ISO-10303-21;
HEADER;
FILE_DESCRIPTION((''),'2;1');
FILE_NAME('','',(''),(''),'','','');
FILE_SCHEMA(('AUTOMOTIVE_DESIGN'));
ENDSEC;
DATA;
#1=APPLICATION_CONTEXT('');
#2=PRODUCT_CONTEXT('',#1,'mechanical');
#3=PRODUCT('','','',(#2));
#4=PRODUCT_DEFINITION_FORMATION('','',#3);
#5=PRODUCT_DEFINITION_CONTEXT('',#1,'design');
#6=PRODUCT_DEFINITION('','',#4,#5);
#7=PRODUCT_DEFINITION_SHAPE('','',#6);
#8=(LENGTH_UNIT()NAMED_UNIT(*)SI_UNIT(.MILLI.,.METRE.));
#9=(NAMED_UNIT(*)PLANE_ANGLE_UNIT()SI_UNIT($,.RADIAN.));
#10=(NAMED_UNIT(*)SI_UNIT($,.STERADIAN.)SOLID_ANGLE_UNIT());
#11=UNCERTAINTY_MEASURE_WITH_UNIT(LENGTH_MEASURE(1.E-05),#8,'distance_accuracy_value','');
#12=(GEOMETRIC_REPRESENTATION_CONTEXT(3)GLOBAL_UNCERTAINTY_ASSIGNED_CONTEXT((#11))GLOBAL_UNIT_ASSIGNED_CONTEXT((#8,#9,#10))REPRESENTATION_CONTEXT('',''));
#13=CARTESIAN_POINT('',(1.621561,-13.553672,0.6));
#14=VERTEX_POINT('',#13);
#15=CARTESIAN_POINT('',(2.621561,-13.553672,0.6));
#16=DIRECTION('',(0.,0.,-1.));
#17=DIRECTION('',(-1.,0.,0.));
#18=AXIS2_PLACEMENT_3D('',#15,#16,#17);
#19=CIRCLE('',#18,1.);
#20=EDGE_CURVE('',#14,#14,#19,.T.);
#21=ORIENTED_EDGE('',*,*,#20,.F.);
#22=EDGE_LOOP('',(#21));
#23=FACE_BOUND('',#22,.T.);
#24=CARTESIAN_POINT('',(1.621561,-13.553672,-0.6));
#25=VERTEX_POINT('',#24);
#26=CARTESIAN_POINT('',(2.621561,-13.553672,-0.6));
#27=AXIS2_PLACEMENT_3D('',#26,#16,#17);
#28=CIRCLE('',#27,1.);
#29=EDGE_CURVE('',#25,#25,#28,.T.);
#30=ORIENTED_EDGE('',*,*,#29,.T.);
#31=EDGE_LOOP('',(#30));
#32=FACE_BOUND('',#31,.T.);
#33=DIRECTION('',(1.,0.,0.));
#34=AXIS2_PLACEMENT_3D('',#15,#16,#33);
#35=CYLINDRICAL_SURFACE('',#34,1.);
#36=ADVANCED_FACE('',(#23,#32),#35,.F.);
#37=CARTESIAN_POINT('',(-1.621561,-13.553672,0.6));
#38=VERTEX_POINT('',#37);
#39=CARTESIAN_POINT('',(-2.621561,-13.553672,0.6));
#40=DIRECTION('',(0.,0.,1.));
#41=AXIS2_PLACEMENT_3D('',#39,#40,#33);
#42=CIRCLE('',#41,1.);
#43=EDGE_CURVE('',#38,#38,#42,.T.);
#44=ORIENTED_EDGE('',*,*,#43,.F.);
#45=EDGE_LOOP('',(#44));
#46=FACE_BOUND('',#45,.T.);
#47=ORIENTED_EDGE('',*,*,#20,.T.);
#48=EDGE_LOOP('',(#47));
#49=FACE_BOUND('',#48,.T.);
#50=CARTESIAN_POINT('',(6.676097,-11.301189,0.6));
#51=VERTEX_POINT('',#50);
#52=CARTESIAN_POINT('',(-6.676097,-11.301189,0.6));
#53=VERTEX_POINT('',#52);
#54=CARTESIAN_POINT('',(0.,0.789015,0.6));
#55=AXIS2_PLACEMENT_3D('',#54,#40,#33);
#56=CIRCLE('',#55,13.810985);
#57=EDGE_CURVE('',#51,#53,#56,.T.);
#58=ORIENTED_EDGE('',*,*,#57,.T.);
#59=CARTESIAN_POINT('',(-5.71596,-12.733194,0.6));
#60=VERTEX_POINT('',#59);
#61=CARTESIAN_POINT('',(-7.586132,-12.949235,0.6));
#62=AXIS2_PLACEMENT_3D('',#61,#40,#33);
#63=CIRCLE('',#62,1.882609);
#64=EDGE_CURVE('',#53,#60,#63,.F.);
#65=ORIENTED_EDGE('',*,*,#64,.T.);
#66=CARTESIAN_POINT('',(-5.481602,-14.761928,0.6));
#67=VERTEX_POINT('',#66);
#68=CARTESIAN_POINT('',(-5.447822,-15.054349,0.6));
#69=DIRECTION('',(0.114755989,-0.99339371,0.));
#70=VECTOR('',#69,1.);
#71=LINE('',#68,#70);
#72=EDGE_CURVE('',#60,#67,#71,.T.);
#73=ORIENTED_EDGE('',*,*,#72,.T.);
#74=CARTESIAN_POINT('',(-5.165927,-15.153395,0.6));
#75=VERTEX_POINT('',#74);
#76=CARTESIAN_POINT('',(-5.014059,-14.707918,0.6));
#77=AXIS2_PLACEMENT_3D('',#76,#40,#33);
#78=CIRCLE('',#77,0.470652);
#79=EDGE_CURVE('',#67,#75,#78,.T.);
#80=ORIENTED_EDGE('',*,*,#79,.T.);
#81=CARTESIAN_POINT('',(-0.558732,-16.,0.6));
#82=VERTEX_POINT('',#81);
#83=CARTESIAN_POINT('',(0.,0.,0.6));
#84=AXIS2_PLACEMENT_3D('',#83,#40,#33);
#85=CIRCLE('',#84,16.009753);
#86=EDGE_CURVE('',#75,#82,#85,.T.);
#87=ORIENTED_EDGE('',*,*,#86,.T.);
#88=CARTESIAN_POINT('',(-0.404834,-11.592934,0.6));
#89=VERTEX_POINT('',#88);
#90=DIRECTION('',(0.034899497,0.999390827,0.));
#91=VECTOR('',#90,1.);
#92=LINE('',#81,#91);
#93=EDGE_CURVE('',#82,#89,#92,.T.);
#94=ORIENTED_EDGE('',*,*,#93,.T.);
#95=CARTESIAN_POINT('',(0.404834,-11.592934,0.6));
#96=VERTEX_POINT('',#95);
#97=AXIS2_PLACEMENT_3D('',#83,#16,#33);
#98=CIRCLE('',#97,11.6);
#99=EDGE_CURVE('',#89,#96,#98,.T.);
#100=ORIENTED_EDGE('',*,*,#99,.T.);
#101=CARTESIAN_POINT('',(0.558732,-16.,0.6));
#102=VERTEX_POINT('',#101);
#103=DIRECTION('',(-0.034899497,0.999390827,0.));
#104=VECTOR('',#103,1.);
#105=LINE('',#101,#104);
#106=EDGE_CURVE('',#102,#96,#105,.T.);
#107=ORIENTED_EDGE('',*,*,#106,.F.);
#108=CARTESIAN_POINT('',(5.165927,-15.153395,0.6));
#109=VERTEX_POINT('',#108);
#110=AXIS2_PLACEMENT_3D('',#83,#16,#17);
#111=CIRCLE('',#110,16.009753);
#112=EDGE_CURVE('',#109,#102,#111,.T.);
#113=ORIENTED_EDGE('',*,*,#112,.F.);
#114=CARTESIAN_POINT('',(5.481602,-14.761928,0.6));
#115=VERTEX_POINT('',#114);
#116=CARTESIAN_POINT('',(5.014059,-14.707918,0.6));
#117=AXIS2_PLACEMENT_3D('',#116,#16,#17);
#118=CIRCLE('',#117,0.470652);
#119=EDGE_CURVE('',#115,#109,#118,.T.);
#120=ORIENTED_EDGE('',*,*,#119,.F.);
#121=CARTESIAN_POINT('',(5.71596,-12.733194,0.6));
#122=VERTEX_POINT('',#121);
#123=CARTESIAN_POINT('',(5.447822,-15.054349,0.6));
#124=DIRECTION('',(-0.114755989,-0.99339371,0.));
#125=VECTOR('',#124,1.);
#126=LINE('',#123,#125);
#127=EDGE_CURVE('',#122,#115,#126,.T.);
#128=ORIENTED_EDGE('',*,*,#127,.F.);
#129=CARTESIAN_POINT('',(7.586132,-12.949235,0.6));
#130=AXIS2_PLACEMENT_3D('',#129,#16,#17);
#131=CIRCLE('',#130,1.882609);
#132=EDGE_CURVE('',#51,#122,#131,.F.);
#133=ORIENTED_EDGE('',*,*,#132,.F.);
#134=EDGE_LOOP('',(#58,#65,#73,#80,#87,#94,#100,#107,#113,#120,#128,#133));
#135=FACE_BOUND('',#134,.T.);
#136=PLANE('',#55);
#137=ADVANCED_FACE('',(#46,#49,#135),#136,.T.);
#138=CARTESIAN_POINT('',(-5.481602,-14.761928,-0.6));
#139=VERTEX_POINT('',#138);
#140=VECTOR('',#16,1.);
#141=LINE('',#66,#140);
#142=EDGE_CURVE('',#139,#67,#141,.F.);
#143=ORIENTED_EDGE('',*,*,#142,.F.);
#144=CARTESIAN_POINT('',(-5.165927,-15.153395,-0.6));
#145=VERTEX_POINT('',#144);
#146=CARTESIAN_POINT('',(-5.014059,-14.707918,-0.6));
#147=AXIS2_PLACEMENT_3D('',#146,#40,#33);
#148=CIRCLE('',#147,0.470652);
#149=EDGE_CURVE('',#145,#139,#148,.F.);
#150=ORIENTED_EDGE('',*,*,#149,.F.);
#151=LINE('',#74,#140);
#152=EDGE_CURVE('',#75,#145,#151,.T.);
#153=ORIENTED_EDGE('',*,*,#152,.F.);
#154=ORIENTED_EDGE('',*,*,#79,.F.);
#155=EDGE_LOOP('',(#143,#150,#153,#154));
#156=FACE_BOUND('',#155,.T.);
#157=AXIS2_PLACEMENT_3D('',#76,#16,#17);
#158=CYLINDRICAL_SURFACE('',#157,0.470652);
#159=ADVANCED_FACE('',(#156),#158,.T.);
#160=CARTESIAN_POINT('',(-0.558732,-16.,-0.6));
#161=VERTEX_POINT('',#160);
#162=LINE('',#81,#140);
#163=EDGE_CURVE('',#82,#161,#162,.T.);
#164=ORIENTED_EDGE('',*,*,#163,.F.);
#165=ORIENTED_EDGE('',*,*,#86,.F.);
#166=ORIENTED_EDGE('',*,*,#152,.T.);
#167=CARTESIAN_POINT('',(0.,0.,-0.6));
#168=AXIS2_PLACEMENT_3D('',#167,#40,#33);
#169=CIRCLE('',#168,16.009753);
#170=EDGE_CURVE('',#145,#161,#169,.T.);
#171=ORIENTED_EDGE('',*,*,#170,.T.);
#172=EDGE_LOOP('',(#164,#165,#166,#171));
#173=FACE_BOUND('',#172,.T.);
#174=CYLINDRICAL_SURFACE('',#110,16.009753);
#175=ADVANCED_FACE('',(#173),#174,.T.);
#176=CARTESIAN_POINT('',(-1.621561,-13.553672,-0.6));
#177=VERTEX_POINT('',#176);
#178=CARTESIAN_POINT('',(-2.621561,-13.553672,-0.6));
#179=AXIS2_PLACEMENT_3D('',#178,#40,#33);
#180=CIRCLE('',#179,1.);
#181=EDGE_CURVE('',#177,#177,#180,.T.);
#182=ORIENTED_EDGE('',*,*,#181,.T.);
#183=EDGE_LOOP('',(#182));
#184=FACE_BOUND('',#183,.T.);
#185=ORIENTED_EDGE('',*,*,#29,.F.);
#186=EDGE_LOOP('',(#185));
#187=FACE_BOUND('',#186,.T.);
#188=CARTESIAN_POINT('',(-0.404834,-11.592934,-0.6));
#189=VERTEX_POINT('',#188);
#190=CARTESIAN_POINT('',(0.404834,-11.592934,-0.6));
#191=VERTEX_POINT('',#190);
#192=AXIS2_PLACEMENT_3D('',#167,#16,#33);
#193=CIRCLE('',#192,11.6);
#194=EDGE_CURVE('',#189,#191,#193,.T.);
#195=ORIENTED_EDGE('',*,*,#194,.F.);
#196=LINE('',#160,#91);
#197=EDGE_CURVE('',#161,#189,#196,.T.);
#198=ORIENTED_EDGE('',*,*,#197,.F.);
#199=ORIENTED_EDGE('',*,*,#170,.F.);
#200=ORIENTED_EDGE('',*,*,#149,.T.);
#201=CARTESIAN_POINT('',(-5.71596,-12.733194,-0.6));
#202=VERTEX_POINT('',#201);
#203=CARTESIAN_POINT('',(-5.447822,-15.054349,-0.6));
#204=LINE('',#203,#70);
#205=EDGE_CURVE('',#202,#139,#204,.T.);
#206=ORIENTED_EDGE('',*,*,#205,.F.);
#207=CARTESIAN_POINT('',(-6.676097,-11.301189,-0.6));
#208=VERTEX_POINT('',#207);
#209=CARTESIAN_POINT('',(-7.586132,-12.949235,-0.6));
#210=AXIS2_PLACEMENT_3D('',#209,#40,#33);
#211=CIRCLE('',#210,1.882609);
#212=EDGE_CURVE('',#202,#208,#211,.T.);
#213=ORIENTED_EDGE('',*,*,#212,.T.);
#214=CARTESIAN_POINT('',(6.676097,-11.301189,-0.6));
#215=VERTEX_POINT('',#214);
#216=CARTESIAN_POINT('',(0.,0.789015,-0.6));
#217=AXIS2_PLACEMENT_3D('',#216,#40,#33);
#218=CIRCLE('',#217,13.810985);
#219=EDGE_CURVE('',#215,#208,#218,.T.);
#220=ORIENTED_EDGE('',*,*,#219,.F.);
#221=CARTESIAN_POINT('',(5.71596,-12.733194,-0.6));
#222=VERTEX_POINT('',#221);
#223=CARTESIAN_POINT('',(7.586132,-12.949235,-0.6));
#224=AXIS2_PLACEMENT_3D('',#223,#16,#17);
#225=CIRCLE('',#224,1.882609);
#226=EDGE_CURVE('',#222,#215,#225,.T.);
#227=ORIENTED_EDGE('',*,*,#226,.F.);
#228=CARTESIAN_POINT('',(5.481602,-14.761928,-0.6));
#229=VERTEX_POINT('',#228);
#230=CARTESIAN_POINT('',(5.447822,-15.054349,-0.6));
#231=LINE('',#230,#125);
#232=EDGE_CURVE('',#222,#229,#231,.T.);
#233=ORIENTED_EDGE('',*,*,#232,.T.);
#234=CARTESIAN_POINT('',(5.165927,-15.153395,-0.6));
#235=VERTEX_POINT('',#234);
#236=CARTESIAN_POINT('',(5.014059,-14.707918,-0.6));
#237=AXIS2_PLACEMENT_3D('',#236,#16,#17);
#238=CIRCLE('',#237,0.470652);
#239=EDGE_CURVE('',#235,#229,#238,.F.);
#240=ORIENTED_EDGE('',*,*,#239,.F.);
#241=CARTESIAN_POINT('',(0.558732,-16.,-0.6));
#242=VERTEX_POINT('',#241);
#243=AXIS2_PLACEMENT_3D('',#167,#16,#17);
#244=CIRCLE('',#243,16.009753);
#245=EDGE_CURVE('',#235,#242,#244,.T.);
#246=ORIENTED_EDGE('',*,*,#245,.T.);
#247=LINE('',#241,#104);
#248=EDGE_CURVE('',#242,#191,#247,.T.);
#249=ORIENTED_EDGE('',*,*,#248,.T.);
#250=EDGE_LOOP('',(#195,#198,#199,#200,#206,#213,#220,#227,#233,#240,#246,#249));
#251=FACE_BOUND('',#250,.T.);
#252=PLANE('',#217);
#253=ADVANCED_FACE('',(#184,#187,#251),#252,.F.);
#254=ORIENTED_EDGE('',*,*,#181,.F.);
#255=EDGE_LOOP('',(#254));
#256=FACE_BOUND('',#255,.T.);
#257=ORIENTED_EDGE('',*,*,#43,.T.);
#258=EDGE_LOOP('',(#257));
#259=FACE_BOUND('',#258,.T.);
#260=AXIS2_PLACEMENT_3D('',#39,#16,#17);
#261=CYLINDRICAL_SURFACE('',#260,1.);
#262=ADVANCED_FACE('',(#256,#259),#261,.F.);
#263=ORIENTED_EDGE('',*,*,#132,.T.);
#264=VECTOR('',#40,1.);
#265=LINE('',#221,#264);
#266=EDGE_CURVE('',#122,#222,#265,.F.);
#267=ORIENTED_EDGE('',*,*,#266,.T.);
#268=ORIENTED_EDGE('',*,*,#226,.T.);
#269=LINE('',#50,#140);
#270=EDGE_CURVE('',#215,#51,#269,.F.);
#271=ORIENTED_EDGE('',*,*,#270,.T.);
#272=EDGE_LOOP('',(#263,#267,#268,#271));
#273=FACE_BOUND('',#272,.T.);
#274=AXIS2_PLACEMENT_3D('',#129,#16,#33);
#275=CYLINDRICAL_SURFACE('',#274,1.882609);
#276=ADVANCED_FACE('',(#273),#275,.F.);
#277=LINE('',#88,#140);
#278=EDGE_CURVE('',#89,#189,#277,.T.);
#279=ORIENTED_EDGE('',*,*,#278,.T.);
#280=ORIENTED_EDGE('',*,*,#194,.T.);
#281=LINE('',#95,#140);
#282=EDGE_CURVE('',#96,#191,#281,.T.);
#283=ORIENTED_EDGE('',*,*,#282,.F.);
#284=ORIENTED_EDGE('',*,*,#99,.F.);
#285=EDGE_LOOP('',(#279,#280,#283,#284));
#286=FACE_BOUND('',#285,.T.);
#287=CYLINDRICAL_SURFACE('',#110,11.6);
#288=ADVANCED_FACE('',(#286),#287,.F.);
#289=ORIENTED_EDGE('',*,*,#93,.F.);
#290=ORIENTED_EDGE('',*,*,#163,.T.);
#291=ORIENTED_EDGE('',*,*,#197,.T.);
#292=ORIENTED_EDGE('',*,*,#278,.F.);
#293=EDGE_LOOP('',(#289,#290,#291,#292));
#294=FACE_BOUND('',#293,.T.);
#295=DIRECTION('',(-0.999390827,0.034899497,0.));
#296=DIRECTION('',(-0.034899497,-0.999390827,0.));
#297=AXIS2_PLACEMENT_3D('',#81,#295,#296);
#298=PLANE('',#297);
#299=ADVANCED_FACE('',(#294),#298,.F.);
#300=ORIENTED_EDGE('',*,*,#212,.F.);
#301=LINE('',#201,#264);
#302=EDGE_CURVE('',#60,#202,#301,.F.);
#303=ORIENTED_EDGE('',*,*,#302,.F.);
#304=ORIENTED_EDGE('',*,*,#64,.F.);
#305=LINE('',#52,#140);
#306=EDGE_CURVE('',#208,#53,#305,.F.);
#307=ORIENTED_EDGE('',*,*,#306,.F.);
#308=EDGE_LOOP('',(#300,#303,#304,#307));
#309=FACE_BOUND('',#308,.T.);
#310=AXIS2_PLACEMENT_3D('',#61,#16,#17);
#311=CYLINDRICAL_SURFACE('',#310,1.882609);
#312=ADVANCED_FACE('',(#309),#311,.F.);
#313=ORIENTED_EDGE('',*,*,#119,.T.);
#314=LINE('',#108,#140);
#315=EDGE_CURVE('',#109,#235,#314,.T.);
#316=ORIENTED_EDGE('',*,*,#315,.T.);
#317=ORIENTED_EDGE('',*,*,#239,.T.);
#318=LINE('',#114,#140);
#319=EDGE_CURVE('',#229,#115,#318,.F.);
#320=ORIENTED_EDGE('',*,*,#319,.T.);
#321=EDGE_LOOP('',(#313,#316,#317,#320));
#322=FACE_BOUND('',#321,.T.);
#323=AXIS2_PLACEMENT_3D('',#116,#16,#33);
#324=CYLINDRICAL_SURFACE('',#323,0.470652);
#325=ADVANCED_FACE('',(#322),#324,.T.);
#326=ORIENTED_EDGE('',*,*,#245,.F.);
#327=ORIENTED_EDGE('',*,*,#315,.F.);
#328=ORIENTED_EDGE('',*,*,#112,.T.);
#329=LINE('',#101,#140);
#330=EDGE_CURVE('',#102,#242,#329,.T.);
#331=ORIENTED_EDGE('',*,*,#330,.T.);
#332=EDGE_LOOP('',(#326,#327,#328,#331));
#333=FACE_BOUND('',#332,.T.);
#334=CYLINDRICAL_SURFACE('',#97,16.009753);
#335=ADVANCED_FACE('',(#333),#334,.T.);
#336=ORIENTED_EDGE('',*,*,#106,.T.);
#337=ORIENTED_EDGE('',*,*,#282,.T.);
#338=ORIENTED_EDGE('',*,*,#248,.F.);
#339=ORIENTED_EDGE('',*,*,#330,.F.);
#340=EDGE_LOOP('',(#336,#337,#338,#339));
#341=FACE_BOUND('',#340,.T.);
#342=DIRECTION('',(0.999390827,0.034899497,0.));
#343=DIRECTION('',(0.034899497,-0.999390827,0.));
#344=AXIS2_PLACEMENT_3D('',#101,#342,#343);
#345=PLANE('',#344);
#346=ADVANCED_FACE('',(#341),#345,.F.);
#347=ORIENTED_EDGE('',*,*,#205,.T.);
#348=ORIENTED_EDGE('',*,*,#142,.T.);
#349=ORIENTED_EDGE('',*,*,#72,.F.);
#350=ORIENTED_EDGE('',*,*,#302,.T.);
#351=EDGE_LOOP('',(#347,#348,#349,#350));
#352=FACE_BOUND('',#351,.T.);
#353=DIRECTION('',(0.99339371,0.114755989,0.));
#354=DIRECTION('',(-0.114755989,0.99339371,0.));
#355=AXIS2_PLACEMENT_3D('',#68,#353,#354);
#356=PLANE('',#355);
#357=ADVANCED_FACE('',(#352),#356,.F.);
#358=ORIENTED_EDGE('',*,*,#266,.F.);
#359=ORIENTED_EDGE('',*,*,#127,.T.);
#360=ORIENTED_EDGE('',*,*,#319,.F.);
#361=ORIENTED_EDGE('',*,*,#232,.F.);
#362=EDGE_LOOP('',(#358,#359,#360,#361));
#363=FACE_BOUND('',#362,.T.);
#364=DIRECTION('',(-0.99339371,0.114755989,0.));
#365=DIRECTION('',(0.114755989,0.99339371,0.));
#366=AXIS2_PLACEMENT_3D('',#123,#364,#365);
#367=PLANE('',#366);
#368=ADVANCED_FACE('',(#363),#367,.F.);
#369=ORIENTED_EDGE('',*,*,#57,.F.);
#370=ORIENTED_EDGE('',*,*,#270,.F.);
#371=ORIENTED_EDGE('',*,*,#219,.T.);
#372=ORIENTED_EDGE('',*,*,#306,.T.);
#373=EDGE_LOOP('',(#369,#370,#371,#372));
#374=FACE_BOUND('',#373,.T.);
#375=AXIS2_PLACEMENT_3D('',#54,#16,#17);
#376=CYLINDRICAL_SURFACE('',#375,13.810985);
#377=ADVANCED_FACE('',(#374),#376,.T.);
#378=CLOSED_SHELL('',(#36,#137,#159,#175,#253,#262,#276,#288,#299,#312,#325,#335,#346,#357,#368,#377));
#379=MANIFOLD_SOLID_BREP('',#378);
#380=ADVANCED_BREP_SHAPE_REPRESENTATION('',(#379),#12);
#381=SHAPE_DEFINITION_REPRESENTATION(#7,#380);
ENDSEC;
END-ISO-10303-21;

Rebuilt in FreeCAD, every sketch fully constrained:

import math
import FreeCAD as App
import Part
import Sketcher

V = App.Vector
Q = App.Units.Quantity


def edges_at(feature, points):
    """Names of the edges that pass closest to the given points."""
    edges = feature.Shape.Edges
    near = lambda p: min(range(len(edges)), key=lambda i: edges[i].distToShape(Part.Vertex(*p))[0])
    return sorted({f"Edge{near(p) + 1}" for p in points})

doc = App.newDocument("Part")
body = doc.addObject("PartDesign::Body", "Body")

# Sketch on XY plane
sketch1 = body.newObject("Sketcher::SketchObject", "Sketch")
sketch1.AttachmentSupport = (doc.getObject("XY_Plane"), [""])
sketch1.MapMode = "FlatFace"
sketch1.addGeometry([
    Part.LineSegment(V(-5.831813, -11.730301, 0), V(-5.447822, -15.054349, 0)),  # 0
    Part.ArcOfCircle(Part.Circle(V(0, 0, 0), V(0, 0, 1), 16.009753), math.radians(-109.894024), math.radians(-92)),  # 1
    Part.LineSegment(V(-0.558732, -16, 0), V(-0.404834, -11.592934, 0)),  # 2
    Part.ArcOfCircle(Part.Circle(V(0, 0, 0), V(0, 0, 1), 11.6), math.radians(90), math.radians(268)),  # 3
    Part.LineSegment(V(0, 11.6, 0), V(0, 14.6, 0)),  # 4
    Part.ArcOfCircle(Part.Circle(V(0, 0.789015, 0), V(0, 0, 1), 13.810985), math.radians(90), math.radians(245.022707)),  # 5
    Part.Circle(V(-2.621561, -13.553672, 0), V(0, 0, 1), 1),  # 6
], False)
sketch1.addConstraint([
    Sketcher.Constraint("Coincident", 0, 2, 1, 1),
    Sketcher.Constraint("Coincident", 1, 2, 2, 1),
    Sketcher.Constraint("Coincident", 2, 2, 3, 2),
    Sketcher.Constraint("Coincident", 3, 1, 4, 1),
    Sketcher.Constraint("Coincident", 4, 2, 5, 1),
    Sketcher.Constraint("Coincident", 5, 2, 0, 1),
    Sketcher.Constraint("Vertical", 4),
    Sketcher.Constraint("Coincident", 1, 3, -1, 1),
    Sketcher.Constraint("Coincident", 3, 3, -1, 1),
    Sketcher.Constraint("PointOnObject", 5, 3, -2),
    Sketcher.Constraint("PointOnObject", 3, 1, -2),
    Sketcher.Constraint("Diameter", 6, 2.0),
    Sketcher.Constraint("Radius", 3, 11.6),
    Sketcher.Constraint("DistanceY", 4, 1, 4, 2, 3.0),
    Sketcher.Constraint("Angle", 2, Q("88 deg")),
    Sketcher.Constraint("DistanceY", 1, 2, -1, 1, 16.0),
    Sketcher.Constraint("Radius", 1, 16.009753),
    Sketcher.Constraint("Radius", 5, 13.810985),
    Sketcher.Constraint("DistanceY", 5, 2, -1, 1, 11.730301),
    Sketcher.Constraint("DistanceX", 6, 3, -1, 1, 2.621561),
    Sketcher.Constraint("DistanceY", 0, 2, -1, 1, 15.054349),
    Sketcher.Constraint("DistanceY", 6, 3, 2, 2, 1.960739),
])
pad1 = body.newObject("PartDesign::Pad", "Pad")
pad1.Profile = sketch1
pad1.Length = 1.2
pad1.Midplane = True
doc.recompute()

fillet = body.newObject("PartDesign::Fillet", "Fillet")
fillet.Base = (pad1, edges_at(pad1, [(-5.832, -11.73, 0)]))
fillet.Radius = 1.882609
doc.recompute()

fillet2 = body.newObject("PartDesign::Fillet", "Fillet001")
fillet2.Base = (fillet, edges_at(fillet, [(-5.448, -15.054, 0)]))
fillet2.Radius = 0.470652
body2 = doc.addObject("PartDesign::Body", "Body001")
doc.recompute()

body2.BaseFeature = body
doc.recompute()

mirroring = doc.addObject("Part::Mirroring", "Mirroring")
mirroring.Source = body
mirroring.Base = V(0, 14.6, 0.6)
mirroring.Normal = V(-1, 0, 0)
body3 = doc.addObject("PartDesign::Body", "Body002")
body3.BaseFeature = mirroring
boolean = body2.newObject("PartDesign::Boolean", "Boolean")
boolean.Type = "Fuse"
boolean.addObjects([body3])
doc.recompute()
mirroring.Visibility = False

doc.recompute()
